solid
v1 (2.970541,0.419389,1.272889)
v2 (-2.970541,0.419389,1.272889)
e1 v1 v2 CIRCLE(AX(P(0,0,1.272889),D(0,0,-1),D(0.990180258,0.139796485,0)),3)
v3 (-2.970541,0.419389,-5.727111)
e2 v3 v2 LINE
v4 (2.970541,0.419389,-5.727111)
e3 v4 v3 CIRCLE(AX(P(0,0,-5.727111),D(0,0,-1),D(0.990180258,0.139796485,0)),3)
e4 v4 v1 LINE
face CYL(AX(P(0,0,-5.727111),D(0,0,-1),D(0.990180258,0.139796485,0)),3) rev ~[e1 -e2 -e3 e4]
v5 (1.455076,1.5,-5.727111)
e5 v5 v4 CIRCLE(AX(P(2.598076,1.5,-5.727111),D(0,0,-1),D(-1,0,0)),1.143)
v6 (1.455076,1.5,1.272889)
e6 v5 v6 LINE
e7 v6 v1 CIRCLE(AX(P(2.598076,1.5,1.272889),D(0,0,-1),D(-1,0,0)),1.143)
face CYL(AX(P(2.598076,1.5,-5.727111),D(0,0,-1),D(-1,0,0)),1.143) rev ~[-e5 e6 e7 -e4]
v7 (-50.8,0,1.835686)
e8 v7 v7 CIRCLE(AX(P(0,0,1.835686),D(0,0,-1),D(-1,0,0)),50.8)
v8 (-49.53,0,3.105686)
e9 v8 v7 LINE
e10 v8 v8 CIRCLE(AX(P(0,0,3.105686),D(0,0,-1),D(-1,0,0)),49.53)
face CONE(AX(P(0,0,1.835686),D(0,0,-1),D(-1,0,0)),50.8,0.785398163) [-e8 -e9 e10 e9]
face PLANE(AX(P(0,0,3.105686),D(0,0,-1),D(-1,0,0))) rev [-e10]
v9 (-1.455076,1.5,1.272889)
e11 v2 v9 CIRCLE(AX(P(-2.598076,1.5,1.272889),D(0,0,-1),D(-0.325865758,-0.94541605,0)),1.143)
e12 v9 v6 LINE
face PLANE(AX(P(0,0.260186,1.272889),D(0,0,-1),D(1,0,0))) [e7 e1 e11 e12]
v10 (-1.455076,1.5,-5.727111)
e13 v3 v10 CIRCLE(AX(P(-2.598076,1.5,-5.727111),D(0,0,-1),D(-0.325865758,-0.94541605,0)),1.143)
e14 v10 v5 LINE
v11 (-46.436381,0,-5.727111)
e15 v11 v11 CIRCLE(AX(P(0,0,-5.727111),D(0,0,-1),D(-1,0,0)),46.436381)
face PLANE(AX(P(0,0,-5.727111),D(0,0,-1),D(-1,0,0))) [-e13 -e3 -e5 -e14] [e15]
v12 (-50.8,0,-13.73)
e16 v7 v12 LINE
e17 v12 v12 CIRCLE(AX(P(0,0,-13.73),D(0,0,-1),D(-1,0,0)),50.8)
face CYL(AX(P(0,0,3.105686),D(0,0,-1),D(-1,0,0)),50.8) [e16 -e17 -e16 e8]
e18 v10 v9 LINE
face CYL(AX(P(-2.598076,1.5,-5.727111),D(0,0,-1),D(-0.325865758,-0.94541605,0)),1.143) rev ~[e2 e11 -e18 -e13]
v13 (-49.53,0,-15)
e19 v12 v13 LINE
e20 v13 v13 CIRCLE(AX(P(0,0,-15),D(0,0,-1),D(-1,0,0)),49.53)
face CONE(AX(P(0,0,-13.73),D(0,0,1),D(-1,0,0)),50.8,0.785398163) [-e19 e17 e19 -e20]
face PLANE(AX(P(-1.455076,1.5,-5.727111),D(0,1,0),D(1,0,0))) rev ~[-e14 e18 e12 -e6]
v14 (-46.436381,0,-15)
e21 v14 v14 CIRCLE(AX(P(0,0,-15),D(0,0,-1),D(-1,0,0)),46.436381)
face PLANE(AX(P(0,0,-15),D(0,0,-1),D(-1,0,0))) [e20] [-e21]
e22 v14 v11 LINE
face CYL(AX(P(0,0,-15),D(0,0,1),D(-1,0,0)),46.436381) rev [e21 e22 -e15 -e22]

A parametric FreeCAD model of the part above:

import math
import FreeCAD as App
import Part
import Sketcher

V = App.Vector


def edges_at(feature, points):
    """Names of the edges that pass closest to the given points."""
    edges = feature.Shape.Edges
    near = lambda p: min(range(len(edges)), key=lambda i: edges[i].distToShape(Part.Vertex(*p))[0])
    return sorted({f"Edge{near(p) + 1}" for p in points})

doc = App.newDocument("Part")
params = doc.addObject("Spreadsheet::Sheet", "Params")
for row, (alias, value) in enumerate([
    ("sketch1_width", "1 mm"),
    ("sketch1_width2", "50.8 mm"),
    ("revolution_angle", "360 deg"),
    ("chamfer_size", "1.27 mm"),
    ("sketch2_radius", "3 mm"),
    ("pocket1_length", "7 mm"),
    ("chamfer2_size", "1.27 mm"),
], start=1):
    params.set(f"A{row}", alias)
    params.set(f"B{row}", "=" + value)
    params.setAlias(f"B{row}", alias)

body = doc.addObject("PartDesign::Body", "Body")

# Sketch on XZ plane
sketch1 = body.newObject("Sketcher::SketchObject", "Sketch")
sketch1.AttachmentSupport = (doc.getObject("XZ_Plane"), [""])
sketch1.MapMode = "FlatFace"
sketch1.addGeometry(Part.LineSegment(V(0, 0, 0), V(0, 3.1, 0)), False)
sketch1.addGeometry(Part.LineSegment(V(0, 3.1, 0), V(-50.8, 3.1, 0)), False)
sketch1.addGeometry(Part.LineSegment(V(-50.8, 3.1, 0), V(-50.8, -15, 0)), False)
sketch1.addGeometry(Part.LineSegment(V(-50.8, -15, 0), V(-46.4, -15, 0)), False)
sketch1.addGeometry(Part.LineSegment(V(-46.4, -15, 0), V(-46.4, -5.7, 0)), False)
sketch1.addGeometry(Part.LineSegment(V(-46.4, -5.7, 0), V(-1, -5.7, 0)), False)
sketch1.addGeometry(Part.LineSegment(V(-1, -5.7, 0), V(-1, 0, 0)), False)
sketch1.addGeometry(Part.LineSegment(V(-1, 0, 0), V(0, 0, 0)), False)
sketch1.addConstraint(Sketcher.Constraint("Coincident", 0, 2, 1, 1))
sketch1.addConstraint(Sketcher.Constraint("Coincident", 1, 2, 2, 1))
sketch1.addConstraint(Sketcher.Constraint("Coincident", 2, 2, 3, 1))
sketch1.addConstraint(Sketcher.Constraint("Coincident", 3, 2, 4, 1))
sketch1.addConstraint(Sketcher.Constraint("Coincident", 4, 2, 5, 1))
sketch1.addConstraint(Sketcher.Constraint("Coincident", 5, 2, 6, 1))
sketch1.addConstraint(Sketcher.Constraint("Coincident", 6, 2, 7, 1))
sketch1.addConstraint(Sketcher.Constraint("Coincident", 7, 2, 0, 1))
sketch1.addConstraint(Sketcher.Constraint("Vertical", 0))
sketch1.addConstraint(Sketcher.Constraint("Horizontal", 1))
sketch1.addConstraint(Sketcher.Constraint("Vertical", 2))
sketch1.addConstraint(Sketcher.Constraint("Horizontal", 3))
sketch1.addConstraint(Sketcher.Constraint("Vertical", 4))
sketch1.addConstraint(Sketcher.Constraint("Horizontal", 5))
sketch1.addConstraint(Sketcher.Constraint("Vertical", 6))
sketch1.addConstraint(Sketcher.Constraint("Horizontal", 7))
sketch1.addConstraint(Sketcher.Constraint("Coincident", 7, 2, -1, 1))
sketch1.addConstraint(Sketcher.Constraint("DistanceX", 7, 1, 7, 2, 1.0))
sketch1.addConstraint(Sketcher.Constraint("DistanceX", 1, 2, 1, 1, 50.8))
sketch1.addConstraint(Sketcher.Constraint("DistanceY", 2, 2, -1, 1, 15.0))
sketch1.addConstraint(Sketcher.Constraint("DistanceX", 3, 1, 3, 2, 4.363619))
sketch1.addConstraint(Sketcher.Constraint("DistanceY", 4, 1, 4, 2, 9.272889))
sketch1.addConstraint(Sketcher.Constraint("DistanceY", 0, 1, 0, 2, 3.105686))
sketch1.setExpression("Constraints[17]", "Params.sketch1_width")
sketch1.setExpression("Constraints[18]", "Params.sketch1_width2")
revolution = body.newObject("PartDesign::Revolution", "Revolution")
revolution.Profile = sketch1
revolution.ReferenceAxis = (sketch1, ["V_Axis"])
revolution.setExpression("Angle", "Params.revolution_angle")
doc.recompute()

chamfer = body.newObject("PartDesign::Chamfer", "Chamfer")
chamfer.Base = (revolution, edges_at(revolution, [(50.8, 0, 3.106)]))
chamfer.setExpression("Size", "Params.chamfer_size")

# Sketch on XY plane
sketch2 = body.newObject("Sketcher::SketchObject", "Sketch001")
sketch2.AttachmentSupport = (doc.getObject("XY_Plane"), [""])
sketch2.MapMode = "FlatFace"
sketch2.AttachmentOffset = App.Placement(V(0, 0, -5.727111), App.Rotation())
sketch2.addGeometry(Part.ArcOfCircle(Part.Circle(V(-2.6, 1.5, 0), V(0, 0, 1), 1.1), math.radians(0), math.radians(251)), False)
sketch2.addGeometry(Part.LineSegment(V(-1.5, 1.5, 0), V(1.5, 1.5, 0)), False)
sketch2.addGeometry(Part.ArcOfCircle(Part.Circle(V(2.6, 1.5, 0), V(0, 0, 1), 1.1), math.radians(-71), math.radians(180)), False)
sketch2.addGeometry(Part.ArcOfCircle(Part.Circle(V(0, 0, 0), V(0, 0, 1), 3), math.radians(172), math.radians(368)), False)
sketch2.addConstraint(Sketcher.Constraint("Coincident", 0, 1, 1, 1))
sketch2.addConstraint(Sketcher.Constraint("Coincident", 1, 2, 2, 2))
sketch2.addConstraint(Sketcher.Constraint("Coincident", 2, 1, 3, 2))
sketch2.addConstraint(Sketcher.Constraint("Coincident", 3, 1, 0, 2))
sketch2.addConstraint(Sketcher.Constraint("Horizontal", 1))
sketch2.addConstraint(Sketcher.Constraint("Coincident", 3, 3, -1, 1))
sketch2.addConstraint(Sketcher.Constraint("Equal", 0, 2))
sketch2.addConstraint(Sketcher.Constraint("Symmetric", 0, 3, 2, 3, -2))
sketch2.addConstraint(Sketcher.Constraint("Horizontal", 2, 3, 0, 1))
sketch2.addConstraint(Sketcher.Constraint("Radius", 3, 3.0))
sketch2.addConstraint(Sketcher.Constraint("Radius", 0, 1.143))
sketch2.addConstraint(Sketcher.Constraint("DistanceY", -1, 1, 0, 3, 1.5))
sketch2.addConstraint(Sketcher.Constraint("DistanceX", 1, 1, 1, 2, 2.910152))
sketch2.setExpression("Constraints[9]", "Params.sketch2_radius")
pocket1 = body.newObject("PartDesign::Pocket", "Pocket")
pocket1.Profile = sketch2
pocket1.setExpression("Length", "Params.pocket1_length")
pocket1.Reversed = True
doc.recompute()

chamfer2 = body.newObject("PartDesign::Chamfer", "Chamfer001")
chamfer2.Base = (pocket1, edges_at(pocket1, [(50.8, 0, -15)]))
chamfer2.setExpression("Size", "Params.chamfer2_size")

doc.recompute()
